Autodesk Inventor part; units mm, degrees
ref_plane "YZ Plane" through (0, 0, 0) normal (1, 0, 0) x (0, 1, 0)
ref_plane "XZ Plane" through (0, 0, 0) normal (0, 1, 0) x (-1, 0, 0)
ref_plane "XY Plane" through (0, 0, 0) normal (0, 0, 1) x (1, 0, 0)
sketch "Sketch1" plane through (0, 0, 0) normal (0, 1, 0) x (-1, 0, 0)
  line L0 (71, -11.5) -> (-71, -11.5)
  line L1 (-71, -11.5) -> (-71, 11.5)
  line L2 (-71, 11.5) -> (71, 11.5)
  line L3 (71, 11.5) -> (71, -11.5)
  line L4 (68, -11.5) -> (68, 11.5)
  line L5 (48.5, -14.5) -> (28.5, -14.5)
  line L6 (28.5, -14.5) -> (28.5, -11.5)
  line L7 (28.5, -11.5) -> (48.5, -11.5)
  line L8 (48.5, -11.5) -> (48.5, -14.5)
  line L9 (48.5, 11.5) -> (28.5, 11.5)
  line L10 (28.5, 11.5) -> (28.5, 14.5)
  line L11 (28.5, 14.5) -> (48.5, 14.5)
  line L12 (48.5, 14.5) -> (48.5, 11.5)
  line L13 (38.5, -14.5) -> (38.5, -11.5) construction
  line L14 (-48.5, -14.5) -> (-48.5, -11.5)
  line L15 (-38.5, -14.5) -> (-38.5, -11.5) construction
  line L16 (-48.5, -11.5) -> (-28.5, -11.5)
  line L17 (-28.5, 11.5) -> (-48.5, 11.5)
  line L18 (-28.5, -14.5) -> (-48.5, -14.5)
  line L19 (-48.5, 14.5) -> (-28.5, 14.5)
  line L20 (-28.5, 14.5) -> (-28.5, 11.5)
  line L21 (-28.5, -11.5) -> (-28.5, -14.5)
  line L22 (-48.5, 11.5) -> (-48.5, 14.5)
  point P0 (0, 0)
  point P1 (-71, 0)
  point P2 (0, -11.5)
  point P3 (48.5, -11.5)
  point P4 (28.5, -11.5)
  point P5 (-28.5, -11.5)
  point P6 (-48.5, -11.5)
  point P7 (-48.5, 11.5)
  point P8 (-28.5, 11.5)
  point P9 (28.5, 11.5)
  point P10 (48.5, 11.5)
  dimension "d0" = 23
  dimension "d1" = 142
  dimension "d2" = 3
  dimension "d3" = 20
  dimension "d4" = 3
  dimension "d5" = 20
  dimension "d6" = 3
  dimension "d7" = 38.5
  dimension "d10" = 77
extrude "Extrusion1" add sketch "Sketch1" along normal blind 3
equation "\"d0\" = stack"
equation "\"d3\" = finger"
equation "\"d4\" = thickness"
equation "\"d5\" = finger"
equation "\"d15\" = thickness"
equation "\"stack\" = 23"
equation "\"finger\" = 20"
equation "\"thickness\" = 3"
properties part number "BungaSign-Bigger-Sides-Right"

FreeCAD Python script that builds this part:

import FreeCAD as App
import Part
import Sketcher

V = App.Vector
Q = App.Units.Quantity


def add_polygon(sketch, points):
    """Adds a closed chain of lines whose ends are joined by coincident constraints."""
    first, n = sketch.GeometryCount, len(points)
    for a, b in zip(points, points[1:] + points[:1]):
        sketch.addGeometry(Part.LineSegment(App.Vector(*a, 0), App.Vector(*b, 0)), False)
    for i in range(n):
        sketch.addConstraint(Sketcher.Constraint("Coincident", first + i, 2, first + (i + 1) % n, 1))

doc = App.newDocument("Part")
body = doc.addObject("PartDesign::Body", "Body")

sketch1 = body.newObject("Sketcher::SketchObject", "Sketch")
sketch1.AttachmentSupport = (doc.getObject("XZ_Plane"), [""])
sketch1.MapMode = "FlatFace"
add_polygon(sketch1, [(-71, -11.5), (-71, 11.5), (-48.5, 11.5), (-48.5, 14.5), (-28.5, 14.5), (-28.5, 11.5), (28.5, 11.5), (28.5, 14.5), (48.5, 14.5), (48.5, 11.5), (71, 11.5), (71, -11.5), (48.5, -11.5), (48.5, -14.5), (28.5, -14.5), (28.5, -11.5), (-28.5, -11.5), (-28.5, -14.5), (-48.5, -14.5), (-48.5, -11.5)])
sketch1.addConstraint(Sketcher.Constraint("Vertical", 0))
sketch1.addConstraint(Sketcher.Constraint("Horizontal", 1))
sketch1.addConstraint(Sketcher.Constraint("Vertical", 2))
sketch1.addConstraint(Sketcher.Constraint("Horizontal", 3))
sketch1.addConstraint(Sketcher.Constraint("Vertical", 4))
sketch1.addConstraint(Sketcher.Constraint("Horizontal", 5))
sketch1.addConstraint(Sketcher.Constraint("Vertical", 6))
sketch1.addConstraint(Sketcher.Constraint("Horizontal", 7))
sketch1.addConstraint(Sketcher.Constraint("Vertical", 8))
sketch1.addConstraint(Sketcher.Constraint("Horizontal", 9))
sketch1.addConstraint(Sketcher.Constraint("Vertical", 10))
sketch1.addConstraint(Sketcher.Constraint("Horizontal", 11))
sketch1.addConstraint(Sketcher.Constraint("Vertical", 12))
sketch1.addConstraint(Sketcher.Constraint("Horizontal", 13))
sketch1.addConstraint(Sketcher.Constraint("Vertical", 14))
sketch1.addConstraint(Sketcher.Constraint("Horizontal", 15))
sketch1.addConstraint(Sketcher.Constraint("Vertical", 16))
sketch1.addConstraint(Sketcher.Constraint("Horizontal", 17))
sketch1.addConstraint(Sketcher.Constraint("Vertical", 18))
sketch1.addConstraint(Sketcher.Constraint("Horizontal", 19))
sketch1.addConstraint(Sketcher.Constraint("Symmetric", 0, 2, 10, 2, -1, 1))
sketch1.addConstraint(Sketcher.Constraint("Symmetric", 2, 2, 12, 2, -1, 1))
sketch1.addConstraint(Sketcher.Constraint("Symmetric", 4, 2, 14, 2, -1, 1))
sketch1.addConstraint(Sketcher.Constraint("Symmetric", 6, 2, 16, 2, -1, 1))
sketch1.addConstraint(Sketcher.Constraint("Symmetric", 8, 2, 18, 2, -1, 1))
sketch1.addConstraint(Sketcher.Constraint("Symmetric", 3, 2, 6, 2, -2))
sketch1.addConstraint(Sketcher.Constraint("Symmetric", 1, 2, 8, 2, -2))
sketch1.addConstraint(Sketcher.Constraint("Horizontal", 1, 2, 4, 2))
sketch1.addConstraint(Sketcher.Constraint("DistanceX", 3, 1, 3, 2, Q("20 mm")))
sketch1.addConstraint(Sketcher.Constraint("DistanceY", 0, 1, 0, 2, Q("23 mm")))
sketch1.addConstraint(Sketcher.Constraint("DistanceY", 2, 1, 2, 2, Q("3 mm")))
sketch1.addConstraint(Sketcher.Constraint("DistanceX", 1, 2, 5, 2, Q("77 mm")))
sketch1.addConstraint(Sketcher.Constraint("DistanceX", 1, 1, 1, 2, Q("22.5 mm")))
pad1 = body.newObject("PartDesign::Pad", "Pad")
pad1.Profile = sketch1
pad1.Length = 3
pad1.Reversed = True

doc.recompute()
